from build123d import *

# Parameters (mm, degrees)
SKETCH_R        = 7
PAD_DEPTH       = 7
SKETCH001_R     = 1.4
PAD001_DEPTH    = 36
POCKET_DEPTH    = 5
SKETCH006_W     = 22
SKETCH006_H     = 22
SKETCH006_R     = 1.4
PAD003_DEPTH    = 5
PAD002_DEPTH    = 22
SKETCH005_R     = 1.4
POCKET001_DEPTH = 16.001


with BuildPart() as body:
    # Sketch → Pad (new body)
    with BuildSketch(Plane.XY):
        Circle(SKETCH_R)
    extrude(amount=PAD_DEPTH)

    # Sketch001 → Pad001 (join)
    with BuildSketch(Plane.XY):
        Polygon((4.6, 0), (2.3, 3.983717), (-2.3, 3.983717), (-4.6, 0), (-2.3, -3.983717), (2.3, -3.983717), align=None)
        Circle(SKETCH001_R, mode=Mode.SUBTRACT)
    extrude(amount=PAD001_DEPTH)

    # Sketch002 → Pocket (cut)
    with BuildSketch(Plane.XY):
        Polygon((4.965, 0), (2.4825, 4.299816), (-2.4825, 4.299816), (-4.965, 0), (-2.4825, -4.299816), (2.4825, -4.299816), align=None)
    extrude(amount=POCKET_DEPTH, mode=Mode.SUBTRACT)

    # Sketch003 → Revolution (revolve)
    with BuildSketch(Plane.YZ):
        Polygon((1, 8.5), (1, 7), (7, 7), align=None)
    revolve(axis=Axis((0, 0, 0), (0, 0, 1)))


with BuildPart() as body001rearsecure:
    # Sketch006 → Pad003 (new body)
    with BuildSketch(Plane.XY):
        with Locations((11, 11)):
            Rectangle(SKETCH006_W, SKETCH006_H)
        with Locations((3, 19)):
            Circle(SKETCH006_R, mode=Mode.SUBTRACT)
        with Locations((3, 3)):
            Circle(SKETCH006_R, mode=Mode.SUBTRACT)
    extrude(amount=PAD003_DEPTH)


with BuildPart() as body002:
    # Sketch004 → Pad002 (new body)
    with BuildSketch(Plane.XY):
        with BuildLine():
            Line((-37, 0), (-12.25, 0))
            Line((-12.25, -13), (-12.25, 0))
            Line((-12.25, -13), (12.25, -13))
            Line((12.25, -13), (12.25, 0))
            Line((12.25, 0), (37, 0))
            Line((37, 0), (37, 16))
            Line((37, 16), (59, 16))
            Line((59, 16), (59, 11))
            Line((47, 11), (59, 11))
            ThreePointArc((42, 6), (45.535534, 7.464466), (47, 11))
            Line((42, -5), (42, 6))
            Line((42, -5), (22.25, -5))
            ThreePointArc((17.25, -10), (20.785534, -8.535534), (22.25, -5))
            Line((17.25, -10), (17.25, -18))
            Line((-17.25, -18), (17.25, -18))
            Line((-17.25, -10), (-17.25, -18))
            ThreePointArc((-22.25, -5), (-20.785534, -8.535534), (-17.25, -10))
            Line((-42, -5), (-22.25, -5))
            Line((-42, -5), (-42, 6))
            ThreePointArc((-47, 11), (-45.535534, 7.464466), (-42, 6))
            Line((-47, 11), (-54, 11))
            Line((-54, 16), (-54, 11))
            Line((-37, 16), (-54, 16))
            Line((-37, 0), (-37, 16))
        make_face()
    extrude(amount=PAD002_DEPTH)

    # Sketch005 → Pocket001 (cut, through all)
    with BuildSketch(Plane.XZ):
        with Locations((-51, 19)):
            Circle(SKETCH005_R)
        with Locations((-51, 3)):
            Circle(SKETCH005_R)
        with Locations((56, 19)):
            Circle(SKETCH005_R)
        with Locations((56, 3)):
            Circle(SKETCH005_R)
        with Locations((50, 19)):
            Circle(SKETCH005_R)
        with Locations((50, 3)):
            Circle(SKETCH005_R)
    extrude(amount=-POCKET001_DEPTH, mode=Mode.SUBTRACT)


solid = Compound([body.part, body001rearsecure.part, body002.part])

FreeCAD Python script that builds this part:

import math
import FreeCAD as App
import Part
import Sketcher

V = App.Vector
Q = App.Units.Quantity

doc = App.newDocument("Part")
params = doc.addObject("Spreadsheet::Sheet", "Params")
for row, (alias, value) in enumerate([
    ("sketch1_diameter", "14 mm"),
    ("pad1_length", "7 mm"),
    ("sketch2_diameter", "2.8 mm"),
    ("sketch2_width", "4.6 mm"),
    ("sketch2_length", "4.6 mm"),
    ("pad2_length", "36 mm"),
    ("pocket1_length", "5 mm"),
    ("sketch4_width", "6 mm"),
    ("sketch4_height", "1.5 mm"),
    ("revolution_angle", "360 deg"),
    ("sketch5_diameter", "2.8 mm"),
    ("sketch5_width", "22 mm"),
    ("pad3_length", "5 mm"),
    ("sketch6_radius", "5 mm"),
    ("sketch6_width", "17 mm"),
    ("sketch6_width2", "7 mm"),
    ("sketch6_width3", "12 mm"),
    ("sketch6_height", "16 mm"),
    ("pad4_length", "22 mm"),
    ("sketch7_diameter", "2.8 mm"),
], start=1):
    params.set(f"A{row}", alias)
    params.set(f"B{row}", "=" + value)
    params.setAlias(f"B{row}", alias)

body = doc.addObject("PartDesign::Body", "Body")

# Sketch on XY plane
sketch1 = body.newObject("Sketcher::SketchObject", "Sketch")
sketch1.AttachmentSupport = (doc.getObject("XY_Plane"), [""])
sketch1.MapMode = "FlatFace"
sketch1.addGeometry(Part.Circle(V(0, 0, 0), V(0, 0, 1), 7), False)
sketch1.addConstraint([
    Sketcher.Constraint("Coincident", 0, 3, -1, 1),
    Sketcher.Constraint("Diameter", 0, Q("14 mm")),
])
sketch1.setExpression("Constraints[1]", "Params.sketch1_diameter")
pad1 = body.newObject("PartDesign::Pad", "Pad")
pad1.Profile = sketch1
pad1.setExpression("Length", "Params.pad1_length")

# Sketch on XY plane
sketch2 = body.newObject("Sketcher::SketchObject", "Sketch001")
sketch2.AttachmentSupport = (doc.getObject("XY_Plane"), [""])
sketch2.MapMode = "FlatFace"
sketch2.addGeometry([
    Part.LineSegment(V(4.6, 0, 0), V(2.3, 4, 0)),  # 0
    Part.LineSegment(V(2.3, 4, 0), V(-2.3, 4, 0)),  # 1
    Part.LineSegment(V(-2.3, 4, 0), V(-4.6, 0, 0)),  # 2
    Part.LineSegment(V(-4.6, 0, 0), V(-2.3, -4, 0)),  # 3
    Part.LineSegment(V(-2.3, -4, 0), V(2.3, -4, 0)),  # 4
    Part.LineSegment(V(2.3, -4, 0), V(4.6, 0, 0)),  # 5
    Part.Circle(V(0, 0, 0), V(0, 0, 1), 1.4),  # 6
], False)
sketch2.addConstraint([
    Sketcher.Constraint("Coincident", 0, 2, 1, 1),
    Sketcher.Constraint("Coincident", 1, 2, 2, 1),
    Sketcher.Constraint("Coincident", 2, 2, 3, 1),
    Sketcher.Constraint("Coincident", 3, 2, 4, 1),
    Sketcher.Constraint("Coincident", 4, 2, 5, 1),
    Sketcher.Constraint("Coincident", 5, 2, 0, 1),
    Sketcher.Constraint("Horizontal", 1),
    Sketcher.Constraint("Horizontal", 4),
    Sketcher.Constraint("Coincident", 6, 3, -1, 1),
    Sketcher.Constraint("Symmetric", 0, 2, 3, 2, -1, 1),
    Sketcher.Constraint("Symmetric", 2, 2, 5, 2, -1, 1),
    Sketcher.Constraint("PointOnObject", 2, 2, -1),
    Sketcher.Constraint("Parallel", 2, 5),
    Sketcher.Constraint("Vertical", 1, 2, 3, 2),
    Sketcher.Constraint("Diameter", 6, Q("2.8 mm")),
    Sketcher.Constraint("Angle", 0, Q("119.999999 deg")),
    Sketcher.Constraint("DistanceX", 1, 2, 1, 1, Q("4.6 mm")),
    Sketcher.Constraint("Distance", 0, Q("4.6 mm")),
])
sketch2.setExpression("Constraints[14]", "Params.sketch2_diameter")
sketch2.setExpression("Constraints[16]", "Params.sketch2_width")
sketch2.setExpression("Constraints[17]", "Params.sketch2_length")
pad2 = body.newObject("PartDesign::Pad", "Pad001")
pad2.Profile = sketch2
pad2.setExpression("Length", "Params.pad2_length")

# Sketch on XY plane
sketch3 = body.newObject("Sketcher::SketchObject", "Sketch002")
sketch3.AttachmentSupport = (doc.getObject("XY_Plane"), [""])
sketch3.MapMode = "FlatFace"
sketch3.addGeometry([
    Part.LineSegment(V(5, 0, 0), V(2.5, 4.3, 0)),  # 0
    Part.LineSegment(V(2.5, 4.3, 0), V(-2.5, 4.3, 0)),  # 1
    Part.LineSegment(V(-2.5, 4.3, 0), V(-5, 0, 0)),  # 2
    Part.LineSegment(V(-5, 0, 0), V(-2.5, -4.3, 0)),  # 3
    Part.LineSegment(V(-2.5, -4.3, 0), V(2.5, -4.3, 0)),  # 4
    Part.LineSegment(V(2.5, -4.3, 0), V(5, 0, 0)),  # 5
], False)
sketch3.addConstraint([
    Sketcher.Constraint("Coincident", 0, 2, 1, 1),
    Sketcher.Constraint("Coincident", 1, 2, 2, 1),
    Sketcher.Constraint("Coincident", 2, 2, 3, 1),
    Sketcher.Constraint("Coincident", 3, 2, 4, 1),
    Sketcher.Constraint("Coincident", 4, 2, 5, 1),
    Sketcher.Constraint("Coincident", 5, 2, 0, 1),
    Sketcher.Constraint("Horizontal", 1),
    Sketcher.Constraint("Horizontal", 4),
    Sketcher.Constraint("Symmetric", 0, 2, 3, 2, -1, 1),
    Sketcher.Constraint("Symmetric", 2, 2, 5, 2, -1, 1),
    Sketcher.Constraint("PointOnObject", 2, 2, -1),
    Sketcher.Constraint("Parallel", 2, 5),
    Sketcher.Constraint("Vertical", 1, 2, 3, 2),
    Sketcher.Constraint("Angle", 0, Q("120.000001 deg")),
    Sketcher.Constraint("DistanceX", 1, 2, 1, 1, Q("4.965 mm")),
    Sketcher.Constraint("DistanceX", 2, 2, 5, 2, Q("9.93 mm")),
])
pocket1 = body.newObject("PartDesign::Pocket", "Pocket")
pocket1.Profile = sketch3
pocket1.setExpression("Length", "Params.pocket1_length")
pocket1.Reversed = True

# Sketch on YZ plane
sketch4 = body.newObject("Sketcher::SketchObject", "Sketch003")
sketch4.AttachmentSupport = (doc.getObject("YZ_Plane"), [""])
sketch4.MapMode = "FlatFace"
sketch4.addGeometry([
    Part.LineSegment(V(1, 8.5, 0), V(1, 7, 0)),
    Part.LineSegment(V(1, 7, 0), V(7, 7, 0)),
    Part.LineSegment(V(7, 7, 0), V(1, 8.5, 0)),
], False)
sketch4.addConstraint([
    Sketcher.Constraint("Coincident", 0, 2, 1, 1),
    Sketcher.Constraint("Coincident", 1, 2, 2, 1),
    Sketcher.Constraint("Coincident", 2, 2, 0, 1),
    Sketcher.Constraint("Vertical", 0),
    Sketcher.Constraint("Horizontal", 1),
    Sketcher.Constraint("DistanceX", 1, 1, 1, 2, Q("6 mm")),
    Sketcher.Constraint("DistanceY", 0, 2, 0, 1, Q("1.5 mm")),
    Sketcher.Constraint("DistanceX", -1, 1, 0, 2, Q("1 mm")),
    Sketcher.Constraint("DistanceY", -1, 1, 0, 2, Q("7 mm")),
])
sketch4.setExpression("Constraints[5]", "Params.sketch4_width")
sketch4.setExpression("Constraints[6]", "Params.sketch4_height")
revolution = body.newObject("PartDesign::Revolution", "Revolution")
revolution.Profile = sketch4
revolution.ReferenceAxis = (sketch4, ["V_Axis"])
revolution.setExpression("Angle", "Params.revolution_angle")
body2 = doc.addObject("PartDesign::Body", "Body001")

# Sketch on XY plane
sketch5 = body2.newObject("Sketcher::SketchObject", "Sketch004")
sketch5.AttachmentSupport = (doc.getObject("XY_Plane001"), [""])
sketch5.MapMode = "FlatFace"
sketch5.addGeometry([
    Part.LineSegment(V(0, 22, 0), V(0, 0, 0)),  # 0
    Part.LineSegment(V(0, 0, 0), V(22, 0, 0)),  # 1
    Part.LineSegment(V(22, 0, 0), V(22, 22, 0)),  # 2
    Part.LineSegment(V(22, 22, 0), V(0, 22, 0)),  # 3
    Part.Circle(V(3, 3, 0), V(0, 0, 1), 1.4),  # 4
    Part.Circle(V(3, 19, 0), V(0, 0, 1), 1.4),  # 5
], False)
sketch5.addConstraint([
    Sketcher.Constraint("Coincident", 0, 2, 1, 1),
    Sketcher.Constraint("Coincident", 1, 2, 2, 1),
    Sketcher.Constraint("Coincident", 2, 2, 3, 1),
    Sketcher.Constraint("Coincident", 3, 2, 0, 1),
    Sketcher.Constraint("Vertical", 0),
    Sketcher.Constraint("Horizontal", 1),
    Sketcher.Constraint("Vertical", 2),
    Sketcher.Constraint("Horizontal", 3),
    Sketcher.Constraint("Coincident", 0, 2, -1, 1),
    Sketcher.Constraint("Equal", 4, 5),
    Sketcher.Constraint("Vertical", 4, 3, 5, 3),
    Sketcher.Constraint("Equal", 3, 0),
    Sketcher.Constraint("Diameter", 4, Q("2.8 mm")),
    Sketcher.Constraint("DistanceX", 1, 1, 1, 2, Q("22 mm")),
    Sketcher.Constraint("DistanceX", -1, 1, 4, 3, Q("3 mm")),
    Sketcher.Constraint("DistanceY", -1, 1, 4, 3, Q("3 mm")),
    Sketcher.Constraint("DistanceY", -1, 1, 5, 3, Q("19 mm")),
])
sketch5.setExpression("Constraints[12]", "Params.sketch5_diameter")
sketch5.setExpression("Constraints[13]", "Params.sketch5_width")
pad3 = body2.newObject("PartDesign::Pad", "Pad002")
pad3.Profile = sketch5
pad3.setExpression("Length", "Params.pad3_length")
body3 = doc.addObject("PartDesign::Body", "Body002")

# Sketch on XY plane
sketch6 = body3.newObject("Sketcher::SketchObject", "Sketch005")
sketch6.AttachmentSupport = (doc.getObject("XY_Plane002"), [""])
sketch6.MapMode = "FlatFace"
sketch6.addGeometry([
    Part.LineSegment(V(-12.2, 0, 0), V(-37, 0, 0)),  # 0
    Part.LineSegment(V(-37, 0, 0), V(-37, 16, 0)),  # 1
    Part.LineSegment(V(-37, 16, 0), V(-54, 16, 0)),  # 2
    Part.LineSegment(V(-54, 16, 0), V(-54, 11, 0)),  # 3
    Part.LineSegment(V(-54, 11, 0), V(-47, 11, 0)),  # 4
    Part.ArcOfCircle(Part.Circle(V(-42, 11, 0), V(0, 0, 1), 5), math.radians(180), math.radians(270)),  # 5
    Part.LineSegment(V(-42, 6, 0), V(-42, -5, 0)),  # 6
    Part.LineSegment(V(-42, -5, 0), V(-22.2, -5, 0)),  # 7
    Part.ArcOfCircle(Part.Circle(V(-17.3, -5, 0), V(0, 0, 1), 5), math.radians(180), math.radians(270)),  # 8
    Part.LineSegment(V(-17.2, -10, 0), V(-17.2, -18, 0)),  # 9
    Part.LineSegment(V(-17.2, -18, 0), V(17.2, -18, 0)),  # 10
    Part.LineSegment(V(17.2, -18, 0), V(17.2, -10, 0)),  # 11
    Part.ArcOfCircle(Part.Circle(V(17.3, -5, 0), V(0, 0, 1), 5), math.radians(-90), math.radians(0)),  # 12
    Part.LineSegment(V(22.2, -5, 0), V(42, -5, 0)),  # 13
    Part.LineSegment(V(42, -5, 0), V(42, 6, 0)),  # 14
    Part.ArcOfCircle(Part.Circle(V(42, 11, 0), V(0, 0, 1), 5), math.radians(-90), math.radians(0)),  # 15
    Part.LineSegment(V(47, 11, 0), V(59, 11, 0)),  # 16
    Part.LineSegment(V(59, 11, 0), V(59, 16, 0)),  # 17
    Part.LineSegment(V(59, 16, 0), V(37, 16, 0)),  # 18
    Part.LineSegment(V(37, 16, 0), V(37, 0, 0)),  # 19
    Part.LineSegment(V(37, 0, 0), V(12.2, 0, 0)),  # 20
    Part.LineSegment(V(12.2, 0, 0), V(12.2, -13, 0)),  # 21
    Part.LineSegment(V(12.2, -13, 0), V(-12.2, -13, 0)),  # 22
    Part.LineSegment(V(-12.2, -13, 0), V(-12.2, 0, 0)),  # 23
], False)
sketch6.addConstraint([
    Sketcher.Constraint("Coincident", 0, 2, 1, 1),
    Sketcher.Constraint("Coincident", 1, 2, 2, 1),
    Sketcher.Constraint("Coincident", 2, 2, 3, 1),
    Sketcher.Constraint("Coincident", 3, 2, 4, 1),
    Sketcher.Constraint("Coincident", 4, 2, 5, 1),
    Sketcher.Constraint("Coincident", 5, 2, 6, 1),
    Sketcher.Constraint("Coincident", 6, 2, 7, 1),
    Sketcher.Constraint("Coincident", 7, 2, 8, 1),
    Sketcher.Constraint("Coincident", 8, 2, 9, 1),
    Sketcher.Constraint("Coincident", 9, 2, 10, 1),
    Sketcher.Constraint("Coincident", 10, 2, 11, 1),
    Sketcher.Constraint("Coincident", 11, 2, 12, 1),
    Sketcher.Constraint("Coincident", 12, 2, 13, 1),
    Sketcher.Constraint("Coincident", 13, 2, 14, 1),
    Sketcher.Constraint("Coincident", 14, 2, 15, 1),
    Sketcher.Constraint("Coincident", 15, 2, 16, 1),
    Sketcher.Constraint("Coincident", 16, 2, 17, 1),
    Sketcher.Constraint("Coincident", 17, 2, 18, 1),
    Sketcher.Constraint("Coincident", 18, 2, 19, 1),
    Sketcher.Constraint("Coincident", 19, 2, 20, 1),
    Sketcher.Constraint("Coincident", 20, 2, 21, 1),
    Sketcher.Constraint("Coincident", 21, 2, 22, 1),
    Sketcher.Constraint("Coincident", 22, 2, 23, 1),
    Sketcher.Constraint("Coincident", 23, 2, 0, 1),
    Sketcher.Constraint("Horizontal", 0),
    Sketcher.Constraint("Vertical", 1),
    Sketcher.Constraint("Horizontal", 2),
    Sketcher.Constraint("Vertical", 3),
    Sketcher.Constraint("Horizontal", 4),
    Sketcher.Constraint("Vertical", 6),
    Sketcher.Constraint("Horizontal", 7),
    Sketcher.Constraint("Vertical", 9),
    Sketcher.Constraint("Horizontal", 10),
    Sketcher.Constraint("Vertical", 11),
    Sketcher.Constraint("Horizontal", 13),
    Sketcher.Constraint("Vertical", 14),
    Sketcher.Constraint("Horizontal", 16),
    Sketcher.Constraint("Vertical", 17),
    Sketcher.Constraint("Horizontal", 18),
    Sketcher.Constraint("Vertical", 19),
    Sketcher.Constraint("Horizontal", 20),
    Sketcher.Constraint("Vertical", 21),
    Sketcher.Constraint("Horizontal", 22),
    Sketcher.Constraint("Vertical", 23),
    Sketcher.Constraint("Equal", 5, 8),
    Sketcher.Constraint("Equal", 8, 12),
    Sketcher.Constraint("Equal", 12, 15),
    Sketcher.Constraint("Symmetric", 0, 2, 19, 2, -1, 1),
    Sketcher.Constraint("Symmetric", 8, 3, 12, 3, -2),
    Sketcher.Constraint("Symmetric", 5, 3, 15, 3, -2),
    Sketcher.Constraint("Symmetric", 6, 2, 13, 2, -2),
    Sketcher.Constraint("Symmetric", 20, 2, 23, 2, -2),
    Sketcher.Constraint("Horizontal", 15, 3, 3, 2),
    Sketcher.Constraint("Horizontal", 12, 3, 6, 2),
    Sketcher.Constraint("Horizontal", 4, 2, 15, 2),
    Sketcher.Constraint("Horizontal", 2, 2, 17, 2),
    Sketcher.Constraint("Vertical", 12, 3, 10, 2),
    Sketcher.Constraint("Vertical", 15, 3, 13, 2),
    Sketcher.Constraint("Radius", 5, Q("5 mm")),
    Sketcher.Constraint("DistanceX", 2, 2, 2, 1, Q("17 mm")),
    Sketcher.Constraint("DistanceX", 4, 1, 4, 2, Q("7 mm")),
    Sketcher.Constraint("DistanceX", 16, 1, 16, 2, Q("12 mm")),
    Sketcher.Constraint("DistanceY", 1, 1, 1, 2, Q("16 mm")),
    Sketcher.Constraint("DistanceY", 3, 2, 3, 1, Q("5 mm")),
    Sketcher.Constraint("DistanceY", 6, 2, 6, 1, Q("11 mm")),
    Sketcher.Constraint("DistanceY", 9, 2, 9, 1, Q("8 mm")),
    Sketcher.Constraint("DistanceY", 21, 2, 21, 1, Q("13 mm")),
    Sketcher.Constraint("DistanceX", 10, 1, 10, 2, Q("34.5 mm")),
    Sketcher.Constraint("DistanceX", 22, 2, 22, 1, Q("24.5 mm")),
    Sketcher.Constraint("DistanceX", 5, 3, -1, 1, Q("42 mm")),
    Sketcher.Constraint("DistanceX", 7, 2, 8, 2, Q("5 mm")),
])
sketch6.setExpression("Constraints[58]", "Params.sketch6_radius")
sketch6.setExpression("Constraints[59]", "Params.sketch6_width")
sketch6.setExpression("Constraints[60]", "Params.sketch6_width2")
sketch6.setExpression("Constraints[61]", "Params.sketch6_width3")
sketch6.setExpression("Constraints[62]", "Params.sketch6_height")
pad4 = body3.newObject("PartDesign::Pad", "Pad003")
pad4.Profile = sketch6
pad4.setExpression("Length", "Params.pad4_length")

# Sketch on XZ plane
sketch7 = body3.newObject("Sketcher::SketchObject", "Sketch006")
sketch7.AttachmentSupport = (doc.getObject("XZ_Plane002"), [""])
sketch7.MapMode = "FlatFace"
sketch7.addGeometry([
    Part.Circle(V(-51, 19, 0), V(0, 0, 1), 1.4),  # 0
    Part.Circle(V(-51, 3, 0), V(0, 0, 1), 1.4),  # 1
    Part.Circle(V(56, 19, 0), V(0, 0, 1), 1.4),  # 2
    Part.Circle(V(56, 3, 0), V(0, 0, 1), 1.4),  # 3
    Part.Circle(V(50, 19, 0), V(0, 0, 1), 1.4),  # 4
    Part.Circle(V(50, 3, 0), V(0, 0, 1), 1.4),  # 5
], False)
sketch7.addConstraint([
    Sketcher.Constraint("Equal", 0, 1),
    Sketcher.Constraint("Equal", 1, 2),
    Sketcher.Constraint("Equal", 2, 3),
    Sketcher.Constraint("Equal", 3, 4),
    Sketcher.Constraint("Equal", 4, 5),
    Sketcher.Constraint("Horizontal", 0, 3, 2, 3),
    Sketcher.Constraint("Horizontal", 1, 3, 3, 3),
    Sketcher.Constraint("Horizontal", 2, 3, 4, 3),
    Sketcher.Constraint("Horizontal", 3, 3, 5, 3),
    Sketcher.Constraint("Vertical", 0, 3, 1, 3),
    Sketcher.Constraint("Vertical", 2, 3, 3, 3),
    Sketcher.Constraint("Vertical", 4, 3, 5, 3),
    Sketcher.Constraint("Diameter", 0, Q("2.8 mm")),
    Sketcher.Constraint("DistanceX", 0, 3, -1, 1, Q("51 mm")),
    Sketcher.Constraint("DistanceY", -1, 1, 0, 3, Q("19 mm")),
    Sketcher.Constraint("DistanceY", -1, 1, 1, 3, Q("3 mm")),
    Sketcher.Constraint("DistanceX", -1, 1, 2, 3, Q("56 mm")),
    Sketcher.Constraint("DistanceX", -1, 1, 4, 3, Q("50 mm")),
])
sketch7.setExpression("Constraints[12]", "Params.sketch7_diameter")
pocket2 = body3.newObject("PartDesign::Pocket", "Pocket001")
pocket2.Profile = sketch7
pocket2.Type = "ThroughAll"

doc.recompute()
